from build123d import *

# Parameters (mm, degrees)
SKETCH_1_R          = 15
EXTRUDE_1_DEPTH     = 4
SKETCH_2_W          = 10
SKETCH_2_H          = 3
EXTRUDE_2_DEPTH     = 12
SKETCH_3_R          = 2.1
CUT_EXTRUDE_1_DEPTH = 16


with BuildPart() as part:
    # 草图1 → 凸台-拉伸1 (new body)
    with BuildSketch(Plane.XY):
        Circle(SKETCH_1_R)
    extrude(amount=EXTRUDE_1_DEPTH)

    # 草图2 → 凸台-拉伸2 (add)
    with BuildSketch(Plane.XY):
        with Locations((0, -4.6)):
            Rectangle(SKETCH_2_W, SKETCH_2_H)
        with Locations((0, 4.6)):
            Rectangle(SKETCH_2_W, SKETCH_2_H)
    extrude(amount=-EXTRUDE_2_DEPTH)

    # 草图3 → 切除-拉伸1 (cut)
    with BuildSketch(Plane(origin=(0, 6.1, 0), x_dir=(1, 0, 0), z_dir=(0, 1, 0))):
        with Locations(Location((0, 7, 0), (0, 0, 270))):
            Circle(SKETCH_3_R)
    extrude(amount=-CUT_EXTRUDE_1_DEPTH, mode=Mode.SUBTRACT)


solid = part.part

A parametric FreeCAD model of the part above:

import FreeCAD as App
import Part
import Sketcher
from FreeCAD import Vector
Q = App.Units.Quantity


def add_polygon(sketch, points):
    """Adds a closed chain of lines whose ends are joined by coincident constraints."""
    first, n = sketch.GeometryCount, len(points)
    for a, b in zip(points, points[1:] + points[:1]):
        sketch.addGeometry(Part.LineSegment(App.Vector(*a, 0), App.Vector(*b, 0)), False)
    for i in range(n):
        sketch.addConstraint(Sketcher.Constraint("Coincident", first + i, 2, first + (i + 1) % n, 1))

doc = App.newDocument("Part")
body = doc.addObject("PartDesign::Body", "Body")

# Sketch on XY plane
sketch1 = body.newObject("Sketcher::SketchObject", "Sketch")
sketch1.AttachmentSupport = (doc.getObject("XY_Plane"), [""])
sketch1.MapMode = "FlatFace"
sketch1.addGeometry(Part.Circle(Vector(0, 0, 0), Vector(0, 0, 1), 15), False)
sketch1.addConstraint(Sketcher.Constraint("Coincident", 0, 3, -1, 1))
sketch1.addConstraint(Sketcher.Constraint("Diameter", 0, Q("30 mm")))
pad1 = body.newObject("PartDesign::Pad", "Pad")
pad1.Profile = sketch1
pad1.Length = 4

# Sketch on XY plane
sketch2 = body.newObject("Sketcher::SketchObject", "Sketch001")
sketch2.AttachmentSupport = (doc.getObject("XY_Plane"), [""])
sketch2.MapMode = "FlatFace"
add_polygon(sketch2, [(-5, -3.1), (-5, -6.1), (5, -6.1), (5, -3.1)])  # lines 0-3
add_polygon(sketch2, [(-5, 6.1), (-5, 3.1), (5, 3.1), (5, 6.1)])  # lines 4-7
sketch2.addConstraint(Sketcher.Constraint("Vertical", 0))
sketch2.addConstraint(Sketcher.Constraint("Horizontal", 1))
sketch2.addConstraint(Sketcher.Constraint("Vertical", 2))
sketch2.addConstraint(Sketcher.Constraint("Horizontal", 3))
sketch2.addConstraint(Sketcher.Constraint("Vertical", 4))
sketch2.addConstraint(Sketcher.Constraint("Horizontal", 5))
sketch2.addConstraint(Sketcher.Constraint("Vertical", 6))
sketch2.addConstraint(Sketcher.Constraint("Horizontal", 7))
sketch2.addConstraint(Sketcher.Constraint("Symmetric", 2, 2, 4, 2, -1, 1))
sketch2.addConstraint(Sketcher.Constraint("Symmetric", 0, 2, 6, 2, -1, 1))
sketch2.addConstraint(Sketcher.Constraint("Vertical", 3, 2, 4, 2))
sketch2.addConstraint(Sketcher.Constraint("DistanceX", 1, 1, 1, 2, Q("10 mm")))
sketch2.addConstraint(Sketcher.Constraint("DistanceY", 0, 2, 0, 1, Q("3 mm")))
sketch2.addConstraint(Sketcher.Constraint("DistanceY", 0, 2, -1, 1, Q("6.1 mm")))
pad2 = body.newObject("PartDesign::Pad", "Pad001")
pad2.Profile = sketch2
pad2.Length = 12
pad2.Reversed = True

# Sketch on XZ plane
sketch3 = body.newObject("Sketcher::SketchObject", "Sketch002")
sketch3.AttachmentSupport = (doc.getObject("XZ_Plane"), [""])
sketch3.MapMode = "FlatFace"
sketch3.AttachmentOffset = App.Placement(Vector(0, 0, -6.1), App.Rotation())
sketch3.addGeometry(Part.Circle(Vector(0, -7, 0), Vector(0, 0, 1), 2.1), False)
sketch3.addConstraint(Sketcher.Constraint("PointOnObject", 0, 3, -2))
sketch3.addConstraint(Sketcher.Constraint("Diameter", 0, Q("4.2 mm")))
sketch3.addConstraint(Sketcher.Constraint("DistanceY", 0, 3, -1, 1, Q("7 mm")))
pocket1 = body.newObject("PartDesign::Pocket", "Pocket")
pocket1.Profile = sketch3
pocket1.Length = 16
pocket1.Reversed = True

doc.recompute()
